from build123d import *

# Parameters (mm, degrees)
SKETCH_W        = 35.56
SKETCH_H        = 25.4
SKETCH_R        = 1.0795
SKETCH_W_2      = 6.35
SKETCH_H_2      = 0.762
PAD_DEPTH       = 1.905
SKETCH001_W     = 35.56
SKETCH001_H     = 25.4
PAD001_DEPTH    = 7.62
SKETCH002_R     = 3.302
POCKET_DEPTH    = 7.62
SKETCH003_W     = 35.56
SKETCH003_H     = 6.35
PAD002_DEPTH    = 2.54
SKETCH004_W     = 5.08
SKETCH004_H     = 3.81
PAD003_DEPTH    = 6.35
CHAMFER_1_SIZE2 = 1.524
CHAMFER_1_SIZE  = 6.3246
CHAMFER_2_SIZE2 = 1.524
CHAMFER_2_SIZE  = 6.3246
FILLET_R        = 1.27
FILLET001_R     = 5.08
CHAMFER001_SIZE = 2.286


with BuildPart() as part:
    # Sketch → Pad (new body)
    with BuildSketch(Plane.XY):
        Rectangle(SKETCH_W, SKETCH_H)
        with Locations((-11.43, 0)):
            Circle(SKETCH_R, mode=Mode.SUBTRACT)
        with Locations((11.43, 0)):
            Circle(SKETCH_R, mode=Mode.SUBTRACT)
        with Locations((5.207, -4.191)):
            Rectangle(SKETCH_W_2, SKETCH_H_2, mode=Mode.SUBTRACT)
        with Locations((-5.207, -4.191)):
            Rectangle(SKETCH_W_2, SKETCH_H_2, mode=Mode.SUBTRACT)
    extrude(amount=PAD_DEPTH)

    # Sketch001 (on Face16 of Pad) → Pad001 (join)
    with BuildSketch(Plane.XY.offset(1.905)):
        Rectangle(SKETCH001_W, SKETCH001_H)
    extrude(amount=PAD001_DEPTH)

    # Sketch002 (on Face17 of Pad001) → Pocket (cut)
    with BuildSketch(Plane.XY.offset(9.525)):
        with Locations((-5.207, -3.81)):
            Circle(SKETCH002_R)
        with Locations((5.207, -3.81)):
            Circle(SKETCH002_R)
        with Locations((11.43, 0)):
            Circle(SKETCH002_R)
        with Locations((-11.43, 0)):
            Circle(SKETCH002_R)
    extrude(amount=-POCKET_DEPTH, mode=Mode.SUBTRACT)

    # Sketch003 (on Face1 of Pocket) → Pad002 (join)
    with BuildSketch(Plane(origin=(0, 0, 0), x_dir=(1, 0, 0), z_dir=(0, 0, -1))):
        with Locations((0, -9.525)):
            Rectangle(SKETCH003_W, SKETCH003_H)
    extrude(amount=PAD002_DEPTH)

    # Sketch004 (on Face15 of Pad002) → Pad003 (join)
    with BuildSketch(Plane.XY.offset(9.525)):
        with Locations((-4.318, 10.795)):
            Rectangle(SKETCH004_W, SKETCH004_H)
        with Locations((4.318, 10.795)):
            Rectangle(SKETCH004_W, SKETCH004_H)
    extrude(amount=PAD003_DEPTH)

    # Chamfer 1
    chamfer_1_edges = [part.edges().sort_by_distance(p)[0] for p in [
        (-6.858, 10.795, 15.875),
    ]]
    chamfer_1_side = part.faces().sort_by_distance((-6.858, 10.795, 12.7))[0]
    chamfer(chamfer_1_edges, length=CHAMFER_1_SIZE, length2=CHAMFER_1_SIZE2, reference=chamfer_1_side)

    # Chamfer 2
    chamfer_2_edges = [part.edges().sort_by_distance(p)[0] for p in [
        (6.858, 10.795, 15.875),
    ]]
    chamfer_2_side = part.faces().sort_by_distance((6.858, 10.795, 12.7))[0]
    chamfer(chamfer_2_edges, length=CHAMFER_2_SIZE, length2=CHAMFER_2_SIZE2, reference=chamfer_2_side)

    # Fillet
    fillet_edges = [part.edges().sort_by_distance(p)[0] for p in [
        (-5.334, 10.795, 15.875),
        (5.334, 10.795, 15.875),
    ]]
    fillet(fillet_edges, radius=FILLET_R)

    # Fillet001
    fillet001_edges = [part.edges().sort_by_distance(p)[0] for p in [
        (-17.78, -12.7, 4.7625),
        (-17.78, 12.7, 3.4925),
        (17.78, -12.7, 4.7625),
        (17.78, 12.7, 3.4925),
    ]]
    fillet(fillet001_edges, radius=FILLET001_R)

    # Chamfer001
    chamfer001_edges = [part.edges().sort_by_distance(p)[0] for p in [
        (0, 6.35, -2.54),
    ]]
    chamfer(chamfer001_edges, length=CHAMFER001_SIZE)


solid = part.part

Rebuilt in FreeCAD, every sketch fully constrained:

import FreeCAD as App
import Part
import Sketcher

V = App.Vector
Q = App.Units.Quantity


def edges_at(feature, points):
    """Names of the edges that pass closest to the given points."""
    edges = feature.Shape.Edges
    near = lambda p: min(range(len(edges)), key=lambda i: edges[i].distToShape(Part.Vertex(*p))[0])
    return sorted({f"Edge{near(p) + 1}" for p in points})


def add_polygon(sketch, points):
    """Adds a closed chain of lines whose ends are joined by coincident constraints."""
    first, n = sketch.GeometryCount, len(points)
    for a, b in zip(points, points[1:] + points[:1]):
        sketch.addGeometry(Part.LineSegment(App.Vector(*a, 0), App.Vector(*b, 0)), False)
    for i in range(n):
        sketch.addConstraint(Sketcher.Constraint("Coincident", first + i, 2, first + (i + 1) % n, 1))

doc = App.newDocument("Part")
body = doc.addObject("PartDesign::Body", "Body")

sketch1 = body.newObject("Sketcher::SketchObject", "Sketch")
sketch1.AttachmentSupport = (doc.getObject("XY_Plane"), [""])
sketch1.MapMode = "FlatFace"
add_polygon(sketch1, [(-17.8, 12.7), (-17.8, -12.7), (17.8, -12.7), (17.8, 12.7)])
add_polygon(sketch1, [(-2, -4.6), (-8.4, -4.6), (-8.4, -3.8), (-2, -3.8)])
add_polygon(sketch1, [(8.4, -4.6), (2, -4.6), (2, -3.8), (8.4, -3.8)])
sketch1.addGeometry(Part.Circle(V(-11.4, 0, 0), V(0, 0, 1), 1.1), False)
sketch1.addGeometry(Part.Circle(V(11.4, 0, 0), V(0, 0, 1), 1.1), False)
sketch1.addConstraint(Sketcher.Constraint("Vertical", 0))
sketch1.addConstraint(Sketcher.Constraint("Horizontal", 1))
sketch1.addConstraint(Sketcher.Constraint("Vertical", 2))
sketch1.addConstraint(Sketcher.Constraint("Horizontal", 3))
sketch1.addConstraint(Sketcher.Constraint("Horizontal", 4))
sketch1.addConstraint(Sketcher.Constraint("Vertical", 5))
sketch1.addConstraint(Sketcher.Constraint("Horizontal", 6))
sketch1.addConstraint(Sketcher.Constraint("Vertical", 7))
sketch1.addConstraint(Sketcher.Constraint("Horizontal", 8))
sketch1.addConstraint(Sketcher.Constraint("Vertical", 9))
sketch1.addConstraint(Sketcher.Constraint("Horizontal", 10))
sketch1.addConstraint(Sketcher.Constraint("Vertical", 11))
sketch1.addConstraint(Sketcher.Constraint("Equal", 12, 13))
sketch1.addConstraint(Sketcher.Constraint("Symmetric", 12, 3, 13, 3, -1, 1))
sketch1.addConstraint(Sketcher.Constraint("Symmetric", 0, 2, 2, 2, -1, 1))
sketch1.addConstraint(Sketcher.Constraint("Symmetric", 7, 2, 8, 2, -2))
sketch1.addConstraint(Sketcher.Constraint("Symmetric", 5, 2, 10, 2, -2))
sketch1.addConstraint(Sketcher.Constraint("PointOnObject", 12, 3, -1))
sketch1.addConstraint(Sketcher.Constraint("DistanceY", 0, 2, 0, 1, Q("1 in")))
sketch1.addConstraint(Sketcher.Constraint("Diameter", 12, Q("0.085 in")))
sketch1.addConstraint(Sketcher.Constraint("DistanceX", 1, 1, 1, 2, Q("1.4 in")))
sketch1.addConstraint(Sketcher.Constraint("DistanceX", 4, 2, 4, 1, Q("0.25 in")))
sketch1.addConstraint(Sketcher.Constraint("DistanceY", 5, 1, 5, 2, Q("0.03 in")))
sketch1.addConstraint(Sketcher.Constraint("DistanceX", 12, 3, 13, 3, Q("0.9 in")))
sketch1.addConstraint(Sketcher.Constraint("DistanceX", 4, 2, -1, 1, Q("0.33 in")))
sketch1.addConstraint(Sketcher.Constraint("DistanceY", 4, 2, -1, 1, Q("0.18 in")))
pad1 = body.newObject("PartDesign::Pad", "Pad")
pad1.Profile = sketch1
pad1.Length = Q("0.075 in")

sketch2 = body.newObject("Sketcher::SketchObject", "Sketch001")
sketch2.AttachmentSupport = (doc.getObject("XY_Plane"), [""])
sketch2.MapMode = "FlatFace"
sketch2.AttachmentOffset = App.Placement(V(0, 0, 0.075 * 25.4), App.Rotation())
add_polygon(sketch2, [(-18, 13), (-18, -13), (18, -13), (18, 13)])
sketch2.addConstraint(Sketcher.Constraint("Vertical", 0))
sketch2.addConstraint(Sketcher.Constraint("Horizontal", 1))
sketch2.addConstraint(Sketcher.Constraint("Vertical", 2))
sketch2.addConstraint(Sketcher.Constraint("Horizontal", 3))
sketch2.addConstraint(Sketcher.Constraint("Symmetric", 0, 2, 2, 2, -1, 1))
sketch2.addConstraint(Sketcher.Constraint("DistanceY", 0, 2, 0, 1, Q("1 in")))
sketch2.addConstraint(Sketcher.Constraint("DistanceX", 1, 1, 1, 2, Q("1.4 in")))
pad2 = body.newObject("PartDesign::Pad", "Pad001")
pad2.Profile = sketch2
pad2.Length = Q("0.3 in")

sketch3 = body.newObject("Sketcher::SketchObject", "Sketch002")
sketch3.AttachmentSupport = (doc.getObject("XY_Plane"), [""])
sketch3.MapMode = "FlatFace"
sketch3.AttachmentOffset = App.Placement(V(0, 0, 0.375 * 25.4), App.Rotation())
sketch3.addGeometry(Part.Circle(V(-5.2, -3.8, 0), V(0, 0, 1), 3.3), False)
sketch3.addGeometry(Part.Circle(V(5.2, -3.8, 0), V(0, 0, 1), 3.3), False)
sketch3.addGeometry(Part.Circle(V(11.4, 0, 0), V(0, 0, 1), 3.3), False)
sketch3.addGeometry(Part.Circle(V(-11.4, 0, 0), V(0, 0, 1), 3.3), False)
sketch3.addConstraint(Sketcher.Constraint("Equal", 0, 1))
sketch3.addConstraint(Sketcher.Constraint("Equal", 1, 2))
sketch3.addConstraint(Sketcher.Constraint("Equal", 2, 3))
sketch3.addConstraint(Sketcher.Constraint("Symmetric", 2, 3, 3, 3, -1, 1))
sketch3.addConstraint(Sketcher.Constraint("Symmetric", 0, 3, 1, 3, -2))
sketch3.addConstraint(Sketcher.Constraint("PointOnObject", 2, 3, -1))
sketch3.addConstraint(Sketcher.Constraint("Diameter", 0, Q("0.26 in")))
sketch3.addConstraint(Sketcher.Constraint("DistanceX", 3, 3, 2, 3, Q("0.9 in")))
sketch3.addConstraint(Sketcher.Constraint("DistanceY", 0, 3, -1, 1, Q("0.15 in")))
sketch3.addConstraint(Sketcher.Constraint("DistanceX", 0, 3, 1, 3, Q("0.41 in")))
pocket1 = body.newObject("PartDesign::Pocket", "Pocket")
pocket1.Profile = sketch3
pocket1.Length = Q("0.3 in")

sketch4 = body.newObject("Sketcher::SketchObject", "Sketch003")
sketch4.AttachmentSupport = (doc.getObject("XY_Plane"), [""])
sketch4.MapMode = "FlatFace"
add_polygon(sketch4, [(-18, 6), (-18, 13), (18, 13), (18, 6)])
sketch4.addConstraint(Sketcher.Constraint("Vertical", 0))
sketch4.addConstraint(Sketcher.Constraint("Horizontal", 1))
sketch4.addConstraint(Sketcher.Constraint("Vertical", 2))
sketch4.addConstraint(Sketcher.Constraint("Horizontal", 3))
sketch4.addConstraint(Sketcher.Constraint("DistanceX", 1, 1, 1, 2, Q("1.4 in")))
sketch4.addConstraint(Sketcher.Constraint("DistanceY", 0, 1, 0, 2, Q("0.25 in")))
sketch4.addConstraint(Sketcher.Constraint("DistanceX", 0, 2, -1, 1, Q("0.7 in")))
sketch4.addConstraint(Sketcher.Constraint("DistanceY", -1, 1, 0, 2, Q("0.5 in")))
pad3 = body.newObject("PartDesign::Pad", "Pad002")
pad3.Profile = sketch4
pad3.Length = Q("0.1 in")
pad3.Reversed = True

sketch5 = body.newObject("Sketcher::SketchObject", "Sketch004")
sketch5.AttachmentSupport = (doc.getObject("XY_Plane"), [""])
sketch5.MapMode = "FlatFace"
sketch5.AttachmentOffset = App.Placement(V(0, 0, 0.375 * 25.4), App.Rotation())
add_polygon(sketch5, [(-6.9, 12.7), (-6.9, 8.9), (-1.8, 8.9), (-1.8, 12.7)])
add_polygon(sketch5, [(1.8, 12.7), (1.8, 8.9), (6.9, 8.9), (6.9, 12.7)])
sketch5.addConstraint(Sketcher.Constraint("Vertical", 0))
sketch5.addConstraint(Sketcher.Constraint("Horizontal", 1))
sketch5.addConstraint(Sketcher.Constraint("Vertical", 2))
sketch5.addConstraint(Sketcher.Constraint("Horizontal", 3))
sketch5.addConstraint(Sketcher.Constraint("Vertical", 4))
sketch5.addConstraint(Sketcher.Constraint("Horizontal", 5))
sketch5.addConstraint(Sketcher.Constraint("Vertical", 6))
sketch5.addConstraint(Sketcher.Constraint("Horizontal", 7))
sketch5.addConstraint(Sketcher.Constraint("Symmetric", 1, 2, 4, 2, -2))
sketch5.addConstraint(Sketcher.Constraint("Symmetric", 3, 2, 6, 2, -2))
sketch5.addConstraint(Sketcher.Constraint("DistanceX", 1, 1, 1, 2, Q("0.2 in")))
sketch5.addConstraint(Sketcher.Constraint("DistanceY", 0, 2, 0, 1, Q("0.15 in")))
sketch5.addConstraint(Sketcher.Constraint("DistanceY", -1, 1, 2, 2, Q("0.5 in")))
sketch5.addConstraint(Sketcher.Constraint("DistanceX", 0, 2, -1, 1, Q("0.27 in")))
pad4 = body.newObject("PartDesign::Pad", "Pad003")
pad4.Profile = sketch5
pad4.Length = Q("0.25 in")
doc.recompute()

chamfer = body.newObject("PartDesign::Chamfer", "Chamfer")
chamfer.Base = (pad4, edges_at(pad4, [(-6.858, 10.795, 15.875)]))
chamfer.ChamferType = "Two distances"
chamfer.Size = Q("0.249 in")
chamfer.Size2 = Q("0.06 in")
doc.recompute()

chamfer2 = body.newObject("PartDesign::Chamfer", "Chamfer001")
chamfer2.Base = (chamfer, edges_at(chamfer, [(6.858, 10.795, 15.875)]))
chamfer2.ChamferType = "Two distances"
chamfer2.Size = Q("0.249 in")
chamfer2.Size2 = Q("0.06 in")
chamfer2.FlipDirection = True
doc.recompute()

fillet = body.newObject("PartDesign::Fillet", "Fillet")
fillet.Base = (chamfer2, edges_at(chamfer2, [(-5.334, 10.795, 15.875), (5.334, 10.795, 15.875)]))
fillet.Radius = Q("0.05 in")
doc.recompute()

fillet2 = body.newObject("PartDesign::Fillet", "Fillet001")
fillet2.Base = (fillet, edges_at(fillet, [
    (-17.78, -12.7, 4.763),
    (-17.78, 12.7, 3.493),
    (17.78, -12.7, 4.763),
    (17.78, 12.7, 3.493),
]))
fillet2.Radius = Q("0.2 in")
doc.recompute()

chamfer3 = body.newObject("PartDesign::Chamfer", "Chamfer002")
chamfer3.Base = (fillet2, edges_at(fillet2, [(0, 6.35, -2.54)]))
chamfer3.Size = Q("0.09 in")

doc.recompute()
